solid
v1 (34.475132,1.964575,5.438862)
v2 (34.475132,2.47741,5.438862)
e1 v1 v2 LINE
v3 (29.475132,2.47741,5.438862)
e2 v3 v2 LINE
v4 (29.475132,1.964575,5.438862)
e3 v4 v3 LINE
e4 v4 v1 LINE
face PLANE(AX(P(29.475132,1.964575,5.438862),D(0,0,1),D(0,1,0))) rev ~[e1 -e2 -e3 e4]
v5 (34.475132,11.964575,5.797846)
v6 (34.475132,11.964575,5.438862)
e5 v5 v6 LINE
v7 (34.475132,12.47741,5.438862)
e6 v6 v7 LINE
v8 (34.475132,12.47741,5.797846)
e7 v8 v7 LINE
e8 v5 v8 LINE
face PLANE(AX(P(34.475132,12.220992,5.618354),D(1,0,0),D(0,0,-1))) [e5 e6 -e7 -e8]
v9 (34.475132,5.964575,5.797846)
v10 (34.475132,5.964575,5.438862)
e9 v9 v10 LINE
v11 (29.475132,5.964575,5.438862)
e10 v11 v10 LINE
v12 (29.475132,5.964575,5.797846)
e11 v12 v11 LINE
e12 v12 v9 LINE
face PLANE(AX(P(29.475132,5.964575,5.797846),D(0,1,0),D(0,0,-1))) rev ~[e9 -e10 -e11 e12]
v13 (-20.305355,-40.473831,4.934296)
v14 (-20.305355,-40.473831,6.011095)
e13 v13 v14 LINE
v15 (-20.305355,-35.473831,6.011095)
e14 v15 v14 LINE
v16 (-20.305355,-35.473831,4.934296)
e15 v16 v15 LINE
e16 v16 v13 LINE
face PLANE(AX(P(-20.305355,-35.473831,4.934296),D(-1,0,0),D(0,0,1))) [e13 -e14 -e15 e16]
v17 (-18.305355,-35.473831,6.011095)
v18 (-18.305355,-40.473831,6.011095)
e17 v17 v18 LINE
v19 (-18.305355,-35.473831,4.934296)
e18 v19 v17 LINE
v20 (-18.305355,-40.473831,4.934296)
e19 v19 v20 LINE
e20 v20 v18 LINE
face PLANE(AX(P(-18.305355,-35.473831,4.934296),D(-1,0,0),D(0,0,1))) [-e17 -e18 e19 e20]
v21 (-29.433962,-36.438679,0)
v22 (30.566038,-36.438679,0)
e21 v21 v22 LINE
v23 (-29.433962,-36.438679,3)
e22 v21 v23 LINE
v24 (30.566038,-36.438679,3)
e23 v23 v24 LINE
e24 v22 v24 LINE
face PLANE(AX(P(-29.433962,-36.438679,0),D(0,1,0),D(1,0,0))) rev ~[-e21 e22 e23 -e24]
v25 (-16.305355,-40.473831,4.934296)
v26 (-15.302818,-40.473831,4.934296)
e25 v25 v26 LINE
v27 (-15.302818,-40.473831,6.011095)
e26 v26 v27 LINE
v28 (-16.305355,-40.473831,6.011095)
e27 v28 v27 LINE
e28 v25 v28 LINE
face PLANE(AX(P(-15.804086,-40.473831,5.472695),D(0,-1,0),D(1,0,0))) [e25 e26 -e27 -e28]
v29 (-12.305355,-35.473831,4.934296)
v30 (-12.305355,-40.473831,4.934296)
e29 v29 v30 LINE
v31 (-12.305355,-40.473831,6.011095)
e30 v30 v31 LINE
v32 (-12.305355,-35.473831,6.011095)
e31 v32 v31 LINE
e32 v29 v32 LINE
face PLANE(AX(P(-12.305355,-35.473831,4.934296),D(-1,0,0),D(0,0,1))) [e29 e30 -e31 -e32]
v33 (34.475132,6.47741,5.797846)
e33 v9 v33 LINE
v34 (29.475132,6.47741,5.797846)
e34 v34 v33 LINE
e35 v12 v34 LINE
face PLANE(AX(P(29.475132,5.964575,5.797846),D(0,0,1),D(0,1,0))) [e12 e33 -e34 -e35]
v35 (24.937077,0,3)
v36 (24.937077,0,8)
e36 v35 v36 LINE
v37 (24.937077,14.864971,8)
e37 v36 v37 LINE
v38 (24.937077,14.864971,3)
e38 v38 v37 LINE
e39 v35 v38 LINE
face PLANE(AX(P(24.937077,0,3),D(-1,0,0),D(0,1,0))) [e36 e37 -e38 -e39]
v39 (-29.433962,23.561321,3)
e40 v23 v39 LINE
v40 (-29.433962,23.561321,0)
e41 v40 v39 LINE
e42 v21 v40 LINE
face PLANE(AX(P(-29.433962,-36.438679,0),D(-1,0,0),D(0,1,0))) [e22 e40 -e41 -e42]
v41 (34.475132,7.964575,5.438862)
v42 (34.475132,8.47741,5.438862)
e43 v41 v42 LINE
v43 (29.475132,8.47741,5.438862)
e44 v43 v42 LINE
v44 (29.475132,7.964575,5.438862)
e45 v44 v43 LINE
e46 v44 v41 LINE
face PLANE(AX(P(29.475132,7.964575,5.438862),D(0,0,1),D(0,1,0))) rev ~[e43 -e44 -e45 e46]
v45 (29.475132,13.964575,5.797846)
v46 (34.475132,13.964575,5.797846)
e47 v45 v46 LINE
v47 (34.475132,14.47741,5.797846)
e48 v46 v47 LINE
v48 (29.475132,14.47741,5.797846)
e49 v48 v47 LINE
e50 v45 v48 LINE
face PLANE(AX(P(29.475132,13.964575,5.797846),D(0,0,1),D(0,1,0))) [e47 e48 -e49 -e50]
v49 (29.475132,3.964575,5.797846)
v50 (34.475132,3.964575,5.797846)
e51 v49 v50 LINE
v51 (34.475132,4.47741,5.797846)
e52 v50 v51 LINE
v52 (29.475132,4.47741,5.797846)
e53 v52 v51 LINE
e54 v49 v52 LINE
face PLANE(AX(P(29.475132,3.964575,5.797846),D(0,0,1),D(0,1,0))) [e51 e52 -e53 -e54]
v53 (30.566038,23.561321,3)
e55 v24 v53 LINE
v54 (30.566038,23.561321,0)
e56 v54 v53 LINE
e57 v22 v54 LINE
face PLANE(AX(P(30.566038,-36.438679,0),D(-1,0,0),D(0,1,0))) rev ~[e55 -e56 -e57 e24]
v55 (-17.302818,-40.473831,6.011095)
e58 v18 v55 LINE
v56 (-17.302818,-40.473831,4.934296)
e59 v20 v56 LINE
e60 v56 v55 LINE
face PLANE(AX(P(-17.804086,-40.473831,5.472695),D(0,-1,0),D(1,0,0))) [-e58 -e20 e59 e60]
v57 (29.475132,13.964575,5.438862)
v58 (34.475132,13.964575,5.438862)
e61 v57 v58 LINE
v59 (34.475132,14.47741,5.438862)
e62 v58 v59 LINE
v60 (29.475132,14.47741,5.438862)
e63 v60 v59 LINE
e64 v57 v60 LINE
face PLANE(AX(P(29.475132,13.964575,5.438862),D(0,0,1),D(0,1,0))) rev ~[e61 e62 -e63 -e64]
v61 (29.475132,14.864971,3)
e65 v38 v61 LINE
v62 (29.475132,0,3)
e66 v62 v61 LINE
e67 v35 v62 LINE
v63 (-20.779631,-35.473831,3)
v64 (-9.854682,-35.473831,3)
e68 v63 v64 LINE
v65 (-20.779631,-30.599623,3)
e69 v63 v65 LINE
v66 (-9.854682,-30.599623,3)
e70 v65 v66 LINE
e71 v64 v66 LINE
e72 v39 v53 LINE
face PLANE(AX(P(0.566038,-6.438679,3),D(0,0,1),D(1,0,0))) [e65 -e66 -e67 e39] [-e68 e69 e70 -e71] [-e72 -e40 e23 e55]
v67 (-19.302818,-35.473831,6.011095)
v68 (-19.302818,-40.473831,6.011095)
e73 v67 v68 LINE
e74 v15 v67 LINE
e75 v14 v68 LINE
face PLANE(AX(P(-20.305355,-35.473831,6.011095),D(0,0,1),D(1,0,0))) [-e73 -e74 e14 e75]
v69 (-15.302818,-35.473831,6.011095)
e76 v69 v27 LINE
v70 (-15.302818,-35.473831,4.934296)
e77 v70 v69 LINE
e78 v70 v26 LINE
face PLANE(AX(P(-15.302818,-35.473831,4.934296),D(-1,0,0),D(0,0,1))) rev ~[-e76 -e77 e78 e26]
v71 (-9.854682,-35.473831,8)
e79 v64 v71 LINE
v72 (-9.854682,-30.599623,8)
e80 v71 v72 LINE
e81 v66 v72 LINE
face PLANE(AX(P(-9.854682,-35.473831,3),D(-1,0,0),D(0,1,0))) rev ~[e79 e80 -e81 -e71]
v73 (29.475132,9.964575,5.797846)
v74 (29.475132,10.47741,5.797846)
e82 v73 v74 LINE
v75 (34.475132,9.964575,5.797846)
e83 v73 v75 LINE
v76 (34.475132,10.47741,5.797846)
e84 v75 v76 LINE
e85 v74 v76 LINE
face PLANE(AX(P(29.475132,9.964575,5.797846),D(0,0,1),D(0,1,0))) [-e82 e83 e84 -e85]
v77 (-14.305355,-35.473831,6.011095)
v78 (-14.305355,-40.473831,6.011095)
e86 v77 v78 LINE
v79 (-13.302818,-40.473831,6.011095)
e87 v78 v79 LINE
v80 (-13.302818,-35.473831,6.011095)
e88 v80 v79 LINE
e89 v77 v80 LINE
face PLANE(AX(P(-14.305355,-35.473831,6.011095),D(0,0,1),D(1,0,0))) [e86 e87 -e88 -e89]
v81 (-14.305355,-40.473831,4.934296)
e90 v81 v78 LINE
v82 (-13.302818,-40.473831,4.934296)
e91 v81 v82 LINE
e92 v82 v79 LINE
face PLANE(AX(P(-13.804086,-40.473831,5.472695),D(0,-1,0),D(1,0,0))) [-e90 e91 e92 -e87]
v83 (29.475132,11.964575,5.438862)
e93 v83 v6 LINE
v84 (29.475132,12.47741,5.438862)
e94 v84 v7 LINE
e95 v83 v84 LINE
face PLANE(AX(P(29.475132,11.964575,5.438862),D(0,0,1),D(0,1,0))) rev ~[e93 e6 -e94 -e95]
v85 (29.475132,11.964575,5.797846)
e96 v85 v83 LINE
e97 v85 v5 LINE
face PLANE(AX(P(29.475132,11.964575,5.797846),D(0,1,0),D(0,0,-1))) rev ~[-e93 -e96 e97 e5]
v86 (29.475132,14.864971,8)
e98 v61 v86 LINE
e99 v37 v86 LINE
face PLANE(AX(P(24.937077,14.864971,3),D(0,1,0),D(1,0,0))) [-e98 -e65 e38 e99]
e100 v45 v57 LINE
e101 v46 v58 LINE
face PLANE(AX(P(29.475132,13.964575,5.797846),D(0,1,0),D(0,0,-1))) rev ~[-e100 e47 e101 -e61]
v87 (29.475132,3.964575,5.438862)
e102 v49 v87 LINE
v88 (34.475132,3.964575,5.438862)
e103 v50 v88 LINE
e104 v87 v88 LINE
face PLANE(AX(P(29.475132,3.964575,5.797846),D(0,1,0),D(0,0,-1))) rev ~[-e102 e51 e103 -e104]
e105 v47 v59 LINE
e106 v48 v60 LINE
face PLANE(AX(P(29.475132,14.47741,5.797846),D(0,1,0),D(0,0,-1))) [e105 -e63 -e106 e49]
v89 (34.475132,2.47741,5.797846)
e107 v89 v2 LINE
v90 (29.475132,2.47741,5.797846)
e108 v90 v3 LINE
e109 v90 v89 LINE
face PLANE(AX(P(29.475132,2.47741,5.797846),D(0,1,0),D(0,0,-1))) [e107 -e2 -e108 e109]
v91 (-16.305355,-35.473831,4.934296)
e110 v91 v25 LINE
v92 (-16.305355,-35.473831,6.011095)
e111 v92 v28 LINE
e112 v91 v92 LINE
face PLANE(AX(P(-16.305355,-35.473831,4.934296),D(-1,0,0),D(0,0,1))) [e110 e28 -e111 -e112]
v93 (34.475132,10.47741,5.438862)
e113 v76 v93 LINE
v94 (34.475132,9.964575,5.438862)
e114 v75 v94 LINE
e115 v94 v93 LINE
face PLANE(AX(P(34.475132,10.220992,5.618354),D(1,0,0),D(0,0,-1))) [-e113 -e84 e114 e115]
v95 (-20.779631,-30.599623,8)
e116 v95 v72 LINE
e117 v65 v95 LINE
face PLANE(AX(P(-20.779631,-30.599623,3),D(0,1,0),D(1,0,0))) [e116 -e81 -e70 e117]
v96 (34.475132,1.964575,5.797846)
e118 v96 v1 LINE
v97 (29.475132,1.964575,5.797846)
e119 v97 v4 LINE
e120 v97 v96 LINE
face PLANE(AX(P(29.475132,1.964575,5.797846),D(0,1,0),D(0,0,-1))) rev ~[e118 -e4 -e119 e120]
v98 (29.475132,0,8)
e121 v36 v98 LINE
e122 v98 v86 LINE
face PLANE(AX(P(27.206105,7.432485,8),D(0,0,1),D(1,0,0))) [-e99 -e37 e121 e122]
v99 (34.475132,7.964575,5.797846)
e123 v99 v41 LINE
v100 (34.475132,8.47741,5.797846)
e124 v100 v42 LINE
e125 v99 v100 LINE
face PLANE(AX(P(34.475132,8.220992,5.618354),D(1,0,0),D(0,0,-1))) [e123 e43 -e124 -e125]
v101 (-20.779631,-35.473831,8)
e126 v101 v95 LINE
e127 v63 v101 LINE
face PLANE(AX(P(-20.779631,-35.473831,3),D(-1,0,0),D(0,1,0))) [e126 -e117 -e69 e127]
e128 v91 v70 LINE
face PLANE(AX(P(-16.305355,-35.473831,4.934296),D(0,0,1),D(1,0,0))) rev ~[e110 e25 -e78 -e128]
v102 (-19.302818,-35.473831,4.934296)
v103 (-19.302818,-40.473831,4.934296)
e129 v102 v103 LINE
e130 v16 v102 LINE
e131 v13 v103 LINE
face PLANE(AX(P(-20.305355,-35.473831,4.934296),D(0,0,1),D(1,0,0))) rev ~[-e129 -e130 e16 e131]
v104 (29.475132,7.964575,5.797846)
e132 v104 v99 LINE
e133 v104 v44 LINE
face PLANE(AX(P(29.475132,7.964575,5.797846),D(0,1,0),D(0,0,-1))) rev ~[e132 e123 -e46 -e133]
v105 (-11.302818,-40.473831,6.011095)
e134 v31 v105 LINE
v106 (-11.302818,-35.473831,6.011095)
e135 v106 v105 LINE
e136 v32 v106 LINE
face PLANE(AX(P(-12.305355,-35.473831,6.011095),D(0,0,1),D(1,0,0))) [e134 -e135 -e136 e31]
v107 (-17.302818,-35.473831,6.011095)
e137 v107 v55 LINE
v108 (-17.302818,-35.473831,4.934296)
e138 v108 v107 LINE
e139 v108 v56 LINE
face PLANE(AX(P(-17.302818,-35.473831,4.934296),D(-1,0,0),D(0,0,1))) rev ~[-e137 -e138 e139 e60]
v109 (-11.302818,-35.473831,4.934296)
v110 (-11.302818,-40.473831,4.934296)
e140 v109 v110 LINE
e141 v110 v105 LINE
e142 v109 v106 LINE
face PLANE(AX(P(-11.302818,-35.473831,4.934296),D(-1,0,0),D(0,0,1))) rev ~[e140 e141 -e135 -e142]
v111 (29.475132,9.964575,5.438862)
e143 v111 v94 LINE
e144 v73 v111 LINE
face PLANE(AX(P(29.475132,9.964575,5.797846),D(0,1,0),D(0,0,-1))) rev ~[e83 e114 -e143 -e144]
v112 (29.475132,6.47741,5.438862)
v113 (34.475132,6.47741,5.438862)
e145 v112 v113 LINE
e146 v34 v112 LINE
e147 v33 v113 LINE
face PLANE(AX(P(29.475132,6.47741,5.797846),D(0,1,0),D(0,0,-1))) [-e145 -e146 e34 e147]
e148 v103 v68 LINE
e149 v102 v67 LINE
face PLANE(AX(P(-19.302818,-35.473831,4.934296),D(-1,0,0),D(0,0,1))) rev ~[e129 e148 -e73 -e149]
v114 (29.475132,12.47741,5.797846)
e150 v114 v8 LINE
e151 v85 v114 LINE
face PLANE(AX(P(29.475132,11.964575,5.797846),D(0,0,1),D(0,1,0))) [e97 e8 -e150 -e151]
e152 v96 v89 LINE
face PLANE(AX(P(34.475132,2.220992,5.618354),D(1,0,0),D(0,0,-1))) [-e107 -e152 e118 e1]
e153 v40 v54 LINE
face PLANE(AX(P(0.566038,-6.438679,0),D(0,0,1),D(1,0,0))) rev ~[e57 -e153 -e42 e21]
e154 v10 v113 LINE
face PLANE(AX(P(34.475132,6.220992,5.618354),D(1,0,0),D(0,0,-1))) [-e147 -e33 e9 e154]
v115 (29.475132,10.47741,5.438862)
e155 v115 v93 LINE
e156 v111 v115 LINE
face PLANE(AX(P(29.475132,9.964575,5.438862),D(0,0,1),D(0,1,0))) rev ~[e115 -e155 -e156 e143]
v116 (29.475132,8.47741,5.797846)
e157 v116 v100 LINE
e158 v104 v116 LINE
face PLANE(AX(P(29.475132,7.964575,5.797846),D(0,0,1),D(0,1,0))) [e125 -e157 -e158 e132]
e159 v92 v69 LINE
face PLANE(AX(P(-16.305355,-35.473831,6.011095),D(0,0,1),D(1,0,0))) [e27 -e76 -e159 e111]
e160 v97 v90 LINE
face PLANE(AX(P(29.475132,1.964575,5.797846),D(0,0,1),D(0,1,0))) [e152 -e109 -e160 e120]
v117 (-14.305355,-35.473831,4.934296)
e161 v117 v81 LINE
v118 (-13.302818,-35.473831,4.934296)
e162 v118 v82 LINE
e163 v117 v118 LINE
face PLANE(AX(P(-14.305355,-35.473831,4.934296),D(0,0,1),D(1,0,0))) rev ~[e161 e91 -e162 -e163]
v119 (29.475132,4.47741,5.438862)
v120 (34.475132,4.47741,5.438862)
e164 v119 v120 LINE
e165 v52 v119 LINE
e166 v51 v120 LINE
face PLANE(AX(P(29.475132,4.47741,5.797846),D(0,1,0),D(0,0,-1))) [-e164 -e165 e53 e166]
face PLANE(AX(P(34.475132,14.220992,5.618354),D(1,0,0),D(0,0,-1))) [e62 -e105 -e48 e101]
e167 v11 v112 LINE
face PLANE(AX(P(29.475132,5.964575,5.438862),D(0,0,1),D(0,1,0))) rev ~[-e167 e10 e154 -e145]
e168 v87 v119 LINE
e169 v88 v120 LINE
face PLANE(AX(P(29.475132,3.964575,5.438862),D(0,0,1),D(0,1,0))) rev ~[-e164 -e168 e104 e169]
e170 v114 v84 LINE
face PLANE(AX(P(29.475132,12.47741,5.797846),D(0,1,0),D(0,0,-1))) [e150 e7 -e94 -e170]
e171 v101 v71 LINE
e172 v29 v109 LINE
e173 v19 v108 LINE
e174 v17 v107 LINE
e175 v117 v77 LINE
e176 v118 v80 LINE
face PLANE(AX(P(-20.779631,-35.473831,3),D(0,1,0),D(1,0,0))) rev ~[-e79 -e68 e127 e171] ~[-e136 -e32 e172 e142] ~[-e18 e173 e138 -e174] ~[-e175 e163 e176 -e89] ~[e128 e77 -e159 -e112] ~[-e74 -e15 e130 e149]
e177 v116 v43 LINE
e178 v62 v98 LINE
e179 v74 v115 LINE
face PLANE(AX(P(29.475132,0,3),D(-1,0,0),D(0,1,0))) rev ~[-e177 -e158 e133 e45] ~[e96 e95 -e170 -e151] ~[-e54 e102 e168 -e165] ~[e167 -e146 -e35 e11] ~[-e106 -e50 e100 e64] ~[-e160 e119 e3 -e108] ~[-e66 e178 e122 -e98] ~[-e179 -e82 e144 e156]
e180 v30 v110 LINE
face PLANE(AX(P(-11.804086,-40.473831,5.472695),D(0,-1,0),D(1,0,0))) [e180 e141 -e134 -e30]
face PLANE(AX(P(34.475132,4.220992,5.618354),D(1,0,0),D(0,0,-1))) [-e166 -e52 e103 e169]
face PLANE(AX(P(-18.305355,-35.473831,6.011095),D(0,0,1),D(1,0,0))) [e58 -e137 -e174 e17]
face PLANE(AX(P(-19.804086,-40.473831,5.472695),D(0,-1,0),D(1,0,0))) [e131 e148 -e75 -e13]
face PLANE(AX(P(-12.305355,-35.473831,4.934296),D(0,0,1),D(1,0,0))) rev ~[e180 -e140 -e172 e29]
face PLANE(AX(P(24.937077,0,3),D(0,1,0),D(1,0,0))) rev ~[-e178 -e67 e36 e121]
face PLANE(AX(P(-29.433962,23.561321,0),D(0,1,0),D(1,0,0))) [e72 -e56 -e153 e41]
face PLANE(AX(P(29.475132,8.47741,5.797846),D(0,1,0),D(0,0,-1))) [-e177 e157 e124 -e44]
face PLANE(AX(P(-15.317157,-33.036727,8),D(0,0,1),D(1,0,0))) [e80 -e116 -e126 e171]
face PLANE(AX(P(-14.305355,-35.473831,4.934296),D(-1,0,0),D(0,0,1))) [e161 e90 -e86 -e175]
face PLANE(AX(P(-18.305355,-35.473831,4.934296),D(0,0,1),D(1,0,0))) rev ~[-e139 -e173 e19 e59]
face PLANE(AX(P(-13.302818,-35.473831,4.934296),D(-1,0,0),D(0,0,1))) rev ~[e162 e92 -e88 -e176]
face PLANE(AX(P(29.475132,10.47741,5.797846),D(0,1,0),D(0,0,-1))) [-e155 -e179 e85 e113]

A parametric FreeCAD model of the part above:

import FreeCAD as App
import Part
import Sketcher
from FreeCAD import Vector

doc = App.newDocument("Part")
body = doc.addObject("PartDesign::Body", "Body")

# Sketch on XY plane
sketch1 = body.newObject("Sketcher::SketchObject", "Sketch")
sketch1.AttachmentSupport = (doc.getObject("XY_Plane"), [""])
sketch1.MapMode = "FlatFace"
sketch1.addGeometry(Part.LineSegment(Vector(-29, 24, 0), Vector(-29, -36, 0)), False)
sketch1.addGeometry(Part.LineSegment(Vector(-29, -36, 0), Vector(31, -36, 0)), False)
sketch1.addGeometry(Part.LineSegment(Vector(31, -36, 0), Vector(31, 24, 0)), False)
sketch1.addGeometry(Part.LineSegment(Vector(31, 24, 0), Vector(-29, 24, 0)), False)
sketch1.addConstraint(Sketcher.Constraint("Coincident", 0, 2, 1, 1))
sketch1.addConstraint(Sketcher.Constraint("Coincident", 1, 2, 2, 1))
sketch1.addConstraint(Sketcher.Constraint("Coincident", 2, 2, 3, 1))
sketch1.addConstraint(Sketcher.Constraint("Coincident", 3, 2, 0, 1))
sketch1.addConstraint(Sketcher.Constraint("Vertical", 0))
sketch1.addConstraint(Sketcher.Constraint("Horizontal", 1))
sketch1.addConstraint(Sketcher.Constraint("Vertical", 2))
sketch1.addConstraint(Sketcher.Constraint("Horizontal", 3))
sketch1.addConstraint(Sketcher.Constraint("Equal", 3, 0))
sketch1.addConstraint(Sketcher.Constraint("DistanceX", 1, 1, 1, 2, 60.0))
sketch1.addConstraint(Sketcher.Constraint("DistanceY", 0, 2, -1, 1, 36.438679))
sketch1.addConstraint(Sketcher.Constraint("DistanceX", 0, 2, -1, 1, 29.433962))
pad1 = body.newObject("PartDesign::Pad", "Pad")
pad1.Profile = sketch1
pad1.Length = 3

# Sketch on XY plane
sketch2 = body.newObject("Sketcher::SketchObject", "Sketch001")
sketch2.AttachmentSupport = (doc.getObject("XY_Plane"), [""])
sketch2.MapMode = "FlatFace"
sketch2.AttachmentOffset = App.Placement(Vector(0, 0, 3), App.Rotation())
sketch2.addGeometry(Part.LineSegment(Vector(-20.8, -30.6, 0), Vector(-20.8, -35.5, 0)), False)
sketch2.addGeometry(Part.LineSegment(Vector(-20.8, -35.5, 0), Vector(-9.9, -35.5, 0)), False)
sketch2.addGeometry(Part.LineSegment(Vector(-9.9, -35.5, 0), Vector(-9.9, -30.6, 0)), False)
sketch2.addGeometry(Part.LineSegment(Vector(-9.9, -30.6, 0), Vector(-20.8, -30.6, 0)), False)
sketch2.addGeometry(Part.LineSegment(Vector(24.9, 14.9, 0), Vector(24.9, 0, 0)), False)
sketch2.addGeometry(Part.LineSegment(Vector(24.9, 0, 0), Vector(29.5, 0, 0)), False)
sketch2.addGeometry(Part.LineSegment(Vector(29.5, 0, 0), Vector(29.5, 14.9, 0)), False)
sketch2.addGeometry(Part.LineSegment(Vector(29.5, 14.9, 0), Vector(24.9, 14.9, 0)), False)
sketch2.addConstraint(Sketcher.Constraint("Coincident", 0, 2, 1, 1))
sketch2.addConstraint(Sketcher.Constraint("Coincident", 1, 2, 2, 1))
sketch2.addConstraint(Sketcher.Constraint("Coincident", 2, 2, 3, 1))
sketch2.addConstraint(Sketcher.Constraint("Coincident", 3, 2, 0, 1))
sketch2.addConstraint(Sketcher.Constraint("Coincident", 4, 2, 5, 1))
sketch2.addConstraint(Sketcher.Constraint("Coincident", 5, 2, 6, 1))
sketch2.addConstraint(Sketcher.Constraint("Coincident", 6, 2, 7, 1))
sketch2.addConstraint(Sketcher.Constraint("Coincident", 7, 2, 4, 1))
sketch2.addConstraint(Sketcher.Constraint("Vertical", 0))
sketch2.addConstraint(Sketcher.Constraint("Horizontal", 1))
sketch2.addConstraint(Sketcher.Constraint("Vertical", 2))
sketch2.addConstraint(Sketcher.Constraint("Horizontal", 3))
sketch2.addConstraint(Sketcher.Constraint("Vertical", 4))
sketch2.addConstraint(Sketcher.Constraint("Horizontal", 5))
sketch2.addConstraint(Sketcher.Constraint("Vertical", 6))
sketch2.addConstraint(Sketcher.Constraint("Horizontal", 7))
sketch2.addConstraint(Sketcher.Constraint("PointOnObject", 4, 2, -1))
sketch2.addConstraint(Sketcher.Constraint("DistanceX", 1, 1, 1, 2, 10.924949))
sketch2.addConstraint(Sketcher.Constraint("DistanceY", 4, 2, 4, 1, 14.864971))
sketch2.addConstraint(Sketcher.Constraint("DistanceY", 1, 2, 6, 2, 50.338802))
sketch2.addConstraint(Sketcher.Constraint("DistanceX", 5, 1, 5, 2, 4.538056))
sketch2.addConstraint(Sketcher.Constraint("DistanceY", 0, 2, 0, 1, 4.874208))
sketch2.addConstraint(Sketcher.Constraint("DistanceX", 0, 2, -1, 1, 20.779631))
sketch2.addConstraint(Sketcher.Constraint("DistanceX", 2, 2, 4, 2, 34.791759))
pad2 = body.newObject("PartDesign::Pad", "Pad001")
pad2.Profile = sketch2
pad2.Length = 5

# Sketch on XZ plane
sketch3 = body.newObject("Sketcher::SketchObject", "Sketch002")
sketch3.AttachmentSupport = (doc.getObject("XZ_Plane"), [""])
sketch3.MapMode = "FlatFace"
sketch3.AttachmentOffset = App.Placement(Vector(0, 0, 35.473831), App.Rotation())
sketch3.addGeometry(Part.LineSegment(Vector(-20.3, 6, 0), Vector(-20.3, 4.9, 0)), False)
sketch3.addGeometry(Part.LineSegment(Vector(-20.3, 4.9, 0), Vector(-19.3, 4.9, 0)), False)
sketch3.addGeometry(Part.LineSegment(Vector(-19.3, 4.9, 0), Vector(-19.3, 6, 0)), False)
sketch3.addGeometry(Part.LineSegment(Vector(-19.3, 6, 0), Vector(-20.3, 6, 0)), False)
sketch3.addConstraint(Sketcher.Constraint("Coincident", 0, 2, 1, 1))
sketch3.addConstraint(Sketcher.Constraint("Coincident", 1, 2, 2, 1))
sketch3.addConstraint(Sketcher.Constraint("Coincident", 2, 2, 3, 1))
sketch3.addConstraint(Sketcher.Constraint("Coincident", 3, 2, 0, 1))
sketch3.addConstraint(Sketcher.Constraint("Vertical", 0))
sketch3.addConstraint(Sketcher.Constraint("Horizontal", 1))
sketch3.addConstraint(Sketcher.Constraint("Vertical", 2))
sketch3.addConstraint(Sketcher.Constraint("Horizontal", 3))
sketch3.addConstraint(Sketcher.Constraint("DistanceY", 0, 2, 0, 1, 1.076799))
sketch3.addConstraint(Sketcher.Constraint("DistanceX", 1, 1, 1, 2, 1.002537))
sketch3.addConstraint(Sketcher.Constraint("DistanceX", 0, 2, -1, 1, 20.305355))
sketch3.addConstraint(Sketcher.Constraint("DistanceY", -1, 1, 0, 2, 4.934296))
pad3 = body.newObject("PartDesign::Pad", "Pad002")
pad3.Profile = sketch3
pad3.Length = 5
doc.recompute()

linearpattern = body.newObject("PartDesign::LinearPattern", "LinearPattern")
linearpattern.Originals = [pad3]
linearpattern.Direction = (doc.getObject("X_Axis"), [""])
linearpattern.Mode = "offset"
linearpattern.Offset = 2
linearpattern.Occurrences = 5
body.Tip = linearpattern

# Sketch on YZ plane
sketch4 = body.newObject("Sketcher::SketchObject", "Sketch003")
sketch4.AttachmentSupport = (doc.getObject("YZ_Plane"), [""])
sketch4.MapMode = "FlatFace"
sketch4.AttachmentOffset = App.Placement(Vector(0, 0, 29.475132), App.Rotation())
sketch4.addGeometry(Part.LineSegment(Vector(14.48, 5.8, 0), Vector(13.96, 5.8, 0)), False)
sketch4.addGeometry(Part.LineSegment(Vector(13.96, 5.8, 0), Vector(13.96, 5.44, 0)), False)
sketch4.addGeometry(Part.LineSegment(Vector(13.96, 5.44, 0), Vector(14.48, 5.44, 0)), False)
sketch4.addGeometry(Part.LineSegment(Vector(14.48, 5.44, 0), Vector(14.48, 5.8, 0)), False)
sketch4.addConstraint(Sketcher.Constraint("Coincident", 0, 2, 1, 1))
sketch4.addConstraint(Sketcher.Constraint("Coincident", 1, 2, 2, 1))
sketch4.addConstraint(Sketcher.Constraint("Coincident", 2, 2, 3, 1))
sketch4.addConstraint(Sketcher.Constraint("Coincident", 3, 2, 0, 1))
sketch4.addConstraint(Sketcher.Constraint("Horizontal", 0))
sketch4.addConstraint(Sketcher.Constraint("Vertical", 1))
sketch4.addConstraint(Sketcher.Constraint("Horizontal", 2))
sketch4.addConstraint(Sketcher.Constraint("Vertical", 3))
sketch4.addConstraint(Sketcher.Constraint("DistanceX", 0, 2, 0, 1, 0.512835))
sketch4.addConstraint(Sketcher.Constraint("DistanceY", 1, 2, 1, 1, 0.358984))
sketch4.addConstraint(Sketcher.Constraint("DistanceY", -1, 1, 1, 2, 5.438862))
sketch4.addConstraint(Sketcher.Constraint("DistanceX", -1, 1, 2, 2, 14.47741))
pad4 = body.newObject("PartDesign::Pad", "Pad003")
pad4.Profile = sketch4
pad4.Length = 5
doc.recompute()

linearpattern2 = body.newObject("PartDesign::LinearPattern", "LinearPattern001")
linearpattern2.Originals = [pad4]
linearpattern2.Direction = (doc.getObject("Y_Axis"), [""])
linearpattern2.Mode = "offset"
linearpattern2.Offset = 2
linearpattern2.Occurrences = 7
linearpattern2.Reversed = True
body.Tip = linearpattern2

doc.recompute()
